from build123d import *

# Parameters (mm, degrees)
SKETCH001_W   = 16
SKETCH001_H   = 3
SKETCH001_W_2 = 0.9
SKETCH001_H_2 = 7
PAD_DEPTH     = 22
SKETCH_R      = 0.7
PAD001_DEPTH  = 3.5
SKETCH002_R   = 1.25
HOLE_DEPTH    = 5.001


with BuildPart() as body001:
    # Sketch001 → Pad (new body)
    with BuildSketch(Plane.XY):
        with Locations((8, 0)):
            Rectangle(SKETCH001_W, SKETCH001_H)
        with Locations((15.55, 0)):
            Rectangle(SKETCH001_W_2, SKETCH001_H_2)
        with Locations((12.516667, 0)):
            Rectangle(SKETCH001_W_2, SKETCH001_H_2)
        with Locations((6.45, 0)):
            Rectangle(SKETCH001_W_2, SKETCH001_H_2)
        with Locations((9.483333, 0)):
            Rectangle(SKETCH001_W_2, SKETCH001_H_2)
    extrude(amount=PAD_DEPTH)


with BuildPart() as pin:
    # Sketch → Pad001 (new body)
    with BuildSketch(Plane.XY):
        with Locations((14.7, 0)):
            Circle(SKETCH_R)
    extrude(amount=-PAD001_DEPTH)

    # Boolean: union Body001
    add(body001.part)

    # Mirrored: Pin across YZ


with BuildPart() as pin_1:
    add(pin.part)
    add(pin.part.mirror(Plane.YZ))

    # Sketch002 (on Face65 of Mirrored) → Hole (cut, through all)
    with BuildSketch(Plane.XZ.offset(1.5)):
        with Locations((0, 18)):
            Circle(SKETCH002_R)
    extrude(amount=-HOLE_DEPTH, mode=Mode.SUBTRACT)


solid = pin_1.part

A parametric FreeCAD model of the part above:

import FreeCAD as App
import Part
import Sketcher

V = App.Vector
Q = App.Units.Quantity


def add_polygon(sketch, points):
    """Adds a closed chain of lines whose ends are joined by coincident constraints."""
    first, n = sketch.GeometryCount, len(points)
    for a, b in zip(points, points[1:] + points[:1]):
        sketch.addGeometry(Part.LineSegment(App.Vector(*a, 0), App.Vector(*b, 0)), False)
    for i in range(n):
        sketch.addConstraint(Sketcher.Constraint("Coincident", first + i, 2, first + (i + 1) % n, 1))

doc = App.newDocument("Part")
body = doc.addObject("PartDesign::Body", "Body")

sketch1 = body.newObject("Sketcher::SketchObject", "Sketch")
sketch1.AttachmentSupport = (doc.getObject("XY_Plane"), [""])
sketch1.MapMode = "FlatFace"
add_polygon(sketch1, [(0, 1.5), (0, -1.5), (6, -1.5), (6, -3.5), (6.9, -3.5), (6.9, -1.5), (9, -1.5), (9, -3.5), (9.9, -3.5), (9.9, -1.5), (12.1, -1.5), (12.1, -3.5), (13, -3.5), (13, -1.5), (15.1, -1.5), (15.1, -3.5), (16, -3.5), (16, 3.5), (15.1, 3.5), (15.1, 1.5), (13, 1.5), (13, 3.5), (12.1, 3.5), (12.1, 1.5), (9.9, 1.5), (9.9, 3.5), (9, 3.5), (9, 1.5), (6.9, 1.5), (6.9, 3.5), (6, 3.5), (6, 1.5)])
sketch1.addConstraint([
    Sketcher.Constraint("Vertical", 0),
    Sketcher.Constraint("Horizontal", 1),
    Sketcher.Constraint("Vertical", 2),
    Sketcher.Constraint("Horizontal", 3),
    Sketcher.Constraint("Vertical", 4),
    Sketcher.Constraint("Horizontal", 5),
    Sketcher.Constraint("Vertical", 6),
    Sketcher.Constraint("Horizontal", 7),
    Sketcher.Constraint("Vertical", 8),
    Sketcher.Constraint("Horizontal", 9),
    Sketcher.Constraint("Vertical", 10),
    Sketcher.Constraint("Horizontal", 11),
    Sketcher.Constraint("Vertical", 12),
    Sketcher.Constraint("Horizontal", 13),
    Sketcher.Constraint("Vertical", 14),
    Sketcher.Constraint("Horizontal", 15),
    Sketcher.Constraint("Vertical", 16),
    Sketcher.Constraint("Horizontal", 17),
    Sketcher.Constraint("Vertical", 18),
    Sketcher.Constraint("Horizontal", 19),
    Sketcher.Constraint("Vertical", 20),
    Sketcher.Constraint("Horizontal", 21),
    Sketcher.Constraint("Vertical", 22),
    Sketcher.Constraint("Horizontal", 23),
    Sketcher.Constraint("Vertical", 24),
    Sketcher.Constraint("Horizontal", 25),
    Sketcher.Constraint("Vertical", 26),
    Sketcher.Constraint("Horizontal", 27),
    Sketcher.Constraint("Vertical", 28),
    Sketcher.Constraint("Horizontal", 29),
    Sketcher.Constraint("Vertical", 30),
    Sketcher.Constraint("Horizontal", 31),
    Sketcher.Constraint("Symmetric", 0, 2, 31, 2, -1, 1),
    Sketcher.Constraint("Symmetric", 14, 2, 17, 2, -1),
    Sketcher.Constraint("Symmetric", 12, 2, 19, 2, -1),
    Sketcher.Constraint("Symmetric", 10, 2, 21, 2, -1),
    Sketcher.Constraint("Symmetric", 8, 2, 23, 2, -1),
    Sketcher.Constraint("Symmetric", 6, 2, 25, 2, -1),
    Sketcher.Constraint("Symmetric", 4, 2, 27, 2, -1),
    Sketcher.Constraint("Symmetric", 2, 2, 29, 2, -1),
    Sketcher.Constraint("Horizontal", 1, 2, 4, 2),
    Sketcher.Constraint("Horizontal", 3, 2, 6, 2),
    Sketcher.Constraint("Horizontal", 5, 2, 8, 2),
    Sketcher.Constraint("Horizontal", 7, 2, 10, 2),
    Sketcher.Constraint("Horizontal", 9, 2, 12, 2),
    Sketcher.Constraint("Horizontal", 11, 2, 14, 2),
    Sketcher.Constraint("Equal", 3, 7),
    Sketcher.Constraint("Equal", 5, 9),
    Sketcher.Constraint("Equal", 7, 11),
    Sketcher.Constraint("Equal", 9, 13),
    Sketcher.Constraint("Equal", 11, 15),
    Sketcher.Constraint("DistanceX", 1, 1, 1, 2, Q("6 mm")),
    Sketcher.Constraint("DistanceY", 0, 2, 0, 1, Q("3 mm")),
    Sketcher.Constraint("DistanceY", 2, 2, 2, 1, Q("2 mm")),
    Sketcher.Constraint("DistanceX", 3, 1, 3, 2, Q("0.9 mm")),
    Sketcher.Constraint("DistanceX", -1, 1, 15, 2, Q("16 mm")),
])
pad1 = body.newObject("PartDesign::Pad", "Pad")
pad1.Profile = sketch1
pad1.Length = 22
body2 = doc.addObject("PartDesign::Body", "Body001")

sketch2 = body2.newObject("Sketcher::SketchObject", "Sketch001")
sketch2.AttachmentSupport = (doc.getObject("XY_Plane001"), [""])
sketch2.MapMode = "FlatFace"
sketch2.addGeometry(Part.Circle(V(14.7, 0, 0), V(0, 0, 1), 0.7), False)
sketch2.addConstraint([
    Sketcher.Constraint("PointOnObject", 0, 3, -1),
    Sketcher.Constraint("Diameter", 0, Q("1.4 mm")),
    Sketcher.Constraint("DistanceX", -1, 1, 0, 3, Q("14.7 mm")),
])
pad2 = body2.newObject("PartDesign::Pad", "Pad001")
pad2.Profile = sketch2
pad2.Length = 3.5
pad2.Reversed = True
doc.recompute()

boolean = body2.newObject("PartDesign::Boolean", "Boolean")
boolean.Type = "Fuse"
boolean.addObjects([body])
body3 = doc.addObject("PartDesign::Body", "Body002")
doc.recompute()

body3.BaseFeature = body2
doc.recompute()

mirroring = doc.addObject("Part::Mirroring", "Mirroring")
mirroring.Source = body2
mirroring.Base = V(0, 0, 0)
mirroring.Normal = V(1, 0, 0)
body4 = doc.addObject("PartDesign::Body", "Body003")
body4.BaseFeature = mirroring
boolean2 = body3.newObject("PartDesign::Boolean", "Boolean001")
boolean2.Type = "Fuse"
boolean2.addObjects([body4])
doc.recompute()

sketch3 = body3.newObject("Sketcher::SketchObject", "Sketch002")
sketch3.AttachmentSupport = (doc.getObject("XZ_Plane002"), [""])
sketch3.MapMode = "FlatFace"
sketch3.AttachmentOffset = App.Placement(V(0, 0, 1.5), App.Rotation())
sketch3.addGeometry(Part.Circle(V(0, 18, 0), V(0, 0, 1), 1.2), False)
sketch3.addConstraint([
    Sketcher.Constraint("PointOnObject", 0, 3, -2),
    Sketcher.Constraint("Diameter", 0, Q("2.5 mm")),
    Sketcher.Constraint("DistanceY", -1, 1, 0, 3, Q("18 mm")),
])
pocket1 = body3.newObject("PartDesign::Pocket", "Pocket")
pocket1.Profile = sketch3
pocket1.Type = "ThroughAll"
mirroring.Visibility = False

doc.recompute()
